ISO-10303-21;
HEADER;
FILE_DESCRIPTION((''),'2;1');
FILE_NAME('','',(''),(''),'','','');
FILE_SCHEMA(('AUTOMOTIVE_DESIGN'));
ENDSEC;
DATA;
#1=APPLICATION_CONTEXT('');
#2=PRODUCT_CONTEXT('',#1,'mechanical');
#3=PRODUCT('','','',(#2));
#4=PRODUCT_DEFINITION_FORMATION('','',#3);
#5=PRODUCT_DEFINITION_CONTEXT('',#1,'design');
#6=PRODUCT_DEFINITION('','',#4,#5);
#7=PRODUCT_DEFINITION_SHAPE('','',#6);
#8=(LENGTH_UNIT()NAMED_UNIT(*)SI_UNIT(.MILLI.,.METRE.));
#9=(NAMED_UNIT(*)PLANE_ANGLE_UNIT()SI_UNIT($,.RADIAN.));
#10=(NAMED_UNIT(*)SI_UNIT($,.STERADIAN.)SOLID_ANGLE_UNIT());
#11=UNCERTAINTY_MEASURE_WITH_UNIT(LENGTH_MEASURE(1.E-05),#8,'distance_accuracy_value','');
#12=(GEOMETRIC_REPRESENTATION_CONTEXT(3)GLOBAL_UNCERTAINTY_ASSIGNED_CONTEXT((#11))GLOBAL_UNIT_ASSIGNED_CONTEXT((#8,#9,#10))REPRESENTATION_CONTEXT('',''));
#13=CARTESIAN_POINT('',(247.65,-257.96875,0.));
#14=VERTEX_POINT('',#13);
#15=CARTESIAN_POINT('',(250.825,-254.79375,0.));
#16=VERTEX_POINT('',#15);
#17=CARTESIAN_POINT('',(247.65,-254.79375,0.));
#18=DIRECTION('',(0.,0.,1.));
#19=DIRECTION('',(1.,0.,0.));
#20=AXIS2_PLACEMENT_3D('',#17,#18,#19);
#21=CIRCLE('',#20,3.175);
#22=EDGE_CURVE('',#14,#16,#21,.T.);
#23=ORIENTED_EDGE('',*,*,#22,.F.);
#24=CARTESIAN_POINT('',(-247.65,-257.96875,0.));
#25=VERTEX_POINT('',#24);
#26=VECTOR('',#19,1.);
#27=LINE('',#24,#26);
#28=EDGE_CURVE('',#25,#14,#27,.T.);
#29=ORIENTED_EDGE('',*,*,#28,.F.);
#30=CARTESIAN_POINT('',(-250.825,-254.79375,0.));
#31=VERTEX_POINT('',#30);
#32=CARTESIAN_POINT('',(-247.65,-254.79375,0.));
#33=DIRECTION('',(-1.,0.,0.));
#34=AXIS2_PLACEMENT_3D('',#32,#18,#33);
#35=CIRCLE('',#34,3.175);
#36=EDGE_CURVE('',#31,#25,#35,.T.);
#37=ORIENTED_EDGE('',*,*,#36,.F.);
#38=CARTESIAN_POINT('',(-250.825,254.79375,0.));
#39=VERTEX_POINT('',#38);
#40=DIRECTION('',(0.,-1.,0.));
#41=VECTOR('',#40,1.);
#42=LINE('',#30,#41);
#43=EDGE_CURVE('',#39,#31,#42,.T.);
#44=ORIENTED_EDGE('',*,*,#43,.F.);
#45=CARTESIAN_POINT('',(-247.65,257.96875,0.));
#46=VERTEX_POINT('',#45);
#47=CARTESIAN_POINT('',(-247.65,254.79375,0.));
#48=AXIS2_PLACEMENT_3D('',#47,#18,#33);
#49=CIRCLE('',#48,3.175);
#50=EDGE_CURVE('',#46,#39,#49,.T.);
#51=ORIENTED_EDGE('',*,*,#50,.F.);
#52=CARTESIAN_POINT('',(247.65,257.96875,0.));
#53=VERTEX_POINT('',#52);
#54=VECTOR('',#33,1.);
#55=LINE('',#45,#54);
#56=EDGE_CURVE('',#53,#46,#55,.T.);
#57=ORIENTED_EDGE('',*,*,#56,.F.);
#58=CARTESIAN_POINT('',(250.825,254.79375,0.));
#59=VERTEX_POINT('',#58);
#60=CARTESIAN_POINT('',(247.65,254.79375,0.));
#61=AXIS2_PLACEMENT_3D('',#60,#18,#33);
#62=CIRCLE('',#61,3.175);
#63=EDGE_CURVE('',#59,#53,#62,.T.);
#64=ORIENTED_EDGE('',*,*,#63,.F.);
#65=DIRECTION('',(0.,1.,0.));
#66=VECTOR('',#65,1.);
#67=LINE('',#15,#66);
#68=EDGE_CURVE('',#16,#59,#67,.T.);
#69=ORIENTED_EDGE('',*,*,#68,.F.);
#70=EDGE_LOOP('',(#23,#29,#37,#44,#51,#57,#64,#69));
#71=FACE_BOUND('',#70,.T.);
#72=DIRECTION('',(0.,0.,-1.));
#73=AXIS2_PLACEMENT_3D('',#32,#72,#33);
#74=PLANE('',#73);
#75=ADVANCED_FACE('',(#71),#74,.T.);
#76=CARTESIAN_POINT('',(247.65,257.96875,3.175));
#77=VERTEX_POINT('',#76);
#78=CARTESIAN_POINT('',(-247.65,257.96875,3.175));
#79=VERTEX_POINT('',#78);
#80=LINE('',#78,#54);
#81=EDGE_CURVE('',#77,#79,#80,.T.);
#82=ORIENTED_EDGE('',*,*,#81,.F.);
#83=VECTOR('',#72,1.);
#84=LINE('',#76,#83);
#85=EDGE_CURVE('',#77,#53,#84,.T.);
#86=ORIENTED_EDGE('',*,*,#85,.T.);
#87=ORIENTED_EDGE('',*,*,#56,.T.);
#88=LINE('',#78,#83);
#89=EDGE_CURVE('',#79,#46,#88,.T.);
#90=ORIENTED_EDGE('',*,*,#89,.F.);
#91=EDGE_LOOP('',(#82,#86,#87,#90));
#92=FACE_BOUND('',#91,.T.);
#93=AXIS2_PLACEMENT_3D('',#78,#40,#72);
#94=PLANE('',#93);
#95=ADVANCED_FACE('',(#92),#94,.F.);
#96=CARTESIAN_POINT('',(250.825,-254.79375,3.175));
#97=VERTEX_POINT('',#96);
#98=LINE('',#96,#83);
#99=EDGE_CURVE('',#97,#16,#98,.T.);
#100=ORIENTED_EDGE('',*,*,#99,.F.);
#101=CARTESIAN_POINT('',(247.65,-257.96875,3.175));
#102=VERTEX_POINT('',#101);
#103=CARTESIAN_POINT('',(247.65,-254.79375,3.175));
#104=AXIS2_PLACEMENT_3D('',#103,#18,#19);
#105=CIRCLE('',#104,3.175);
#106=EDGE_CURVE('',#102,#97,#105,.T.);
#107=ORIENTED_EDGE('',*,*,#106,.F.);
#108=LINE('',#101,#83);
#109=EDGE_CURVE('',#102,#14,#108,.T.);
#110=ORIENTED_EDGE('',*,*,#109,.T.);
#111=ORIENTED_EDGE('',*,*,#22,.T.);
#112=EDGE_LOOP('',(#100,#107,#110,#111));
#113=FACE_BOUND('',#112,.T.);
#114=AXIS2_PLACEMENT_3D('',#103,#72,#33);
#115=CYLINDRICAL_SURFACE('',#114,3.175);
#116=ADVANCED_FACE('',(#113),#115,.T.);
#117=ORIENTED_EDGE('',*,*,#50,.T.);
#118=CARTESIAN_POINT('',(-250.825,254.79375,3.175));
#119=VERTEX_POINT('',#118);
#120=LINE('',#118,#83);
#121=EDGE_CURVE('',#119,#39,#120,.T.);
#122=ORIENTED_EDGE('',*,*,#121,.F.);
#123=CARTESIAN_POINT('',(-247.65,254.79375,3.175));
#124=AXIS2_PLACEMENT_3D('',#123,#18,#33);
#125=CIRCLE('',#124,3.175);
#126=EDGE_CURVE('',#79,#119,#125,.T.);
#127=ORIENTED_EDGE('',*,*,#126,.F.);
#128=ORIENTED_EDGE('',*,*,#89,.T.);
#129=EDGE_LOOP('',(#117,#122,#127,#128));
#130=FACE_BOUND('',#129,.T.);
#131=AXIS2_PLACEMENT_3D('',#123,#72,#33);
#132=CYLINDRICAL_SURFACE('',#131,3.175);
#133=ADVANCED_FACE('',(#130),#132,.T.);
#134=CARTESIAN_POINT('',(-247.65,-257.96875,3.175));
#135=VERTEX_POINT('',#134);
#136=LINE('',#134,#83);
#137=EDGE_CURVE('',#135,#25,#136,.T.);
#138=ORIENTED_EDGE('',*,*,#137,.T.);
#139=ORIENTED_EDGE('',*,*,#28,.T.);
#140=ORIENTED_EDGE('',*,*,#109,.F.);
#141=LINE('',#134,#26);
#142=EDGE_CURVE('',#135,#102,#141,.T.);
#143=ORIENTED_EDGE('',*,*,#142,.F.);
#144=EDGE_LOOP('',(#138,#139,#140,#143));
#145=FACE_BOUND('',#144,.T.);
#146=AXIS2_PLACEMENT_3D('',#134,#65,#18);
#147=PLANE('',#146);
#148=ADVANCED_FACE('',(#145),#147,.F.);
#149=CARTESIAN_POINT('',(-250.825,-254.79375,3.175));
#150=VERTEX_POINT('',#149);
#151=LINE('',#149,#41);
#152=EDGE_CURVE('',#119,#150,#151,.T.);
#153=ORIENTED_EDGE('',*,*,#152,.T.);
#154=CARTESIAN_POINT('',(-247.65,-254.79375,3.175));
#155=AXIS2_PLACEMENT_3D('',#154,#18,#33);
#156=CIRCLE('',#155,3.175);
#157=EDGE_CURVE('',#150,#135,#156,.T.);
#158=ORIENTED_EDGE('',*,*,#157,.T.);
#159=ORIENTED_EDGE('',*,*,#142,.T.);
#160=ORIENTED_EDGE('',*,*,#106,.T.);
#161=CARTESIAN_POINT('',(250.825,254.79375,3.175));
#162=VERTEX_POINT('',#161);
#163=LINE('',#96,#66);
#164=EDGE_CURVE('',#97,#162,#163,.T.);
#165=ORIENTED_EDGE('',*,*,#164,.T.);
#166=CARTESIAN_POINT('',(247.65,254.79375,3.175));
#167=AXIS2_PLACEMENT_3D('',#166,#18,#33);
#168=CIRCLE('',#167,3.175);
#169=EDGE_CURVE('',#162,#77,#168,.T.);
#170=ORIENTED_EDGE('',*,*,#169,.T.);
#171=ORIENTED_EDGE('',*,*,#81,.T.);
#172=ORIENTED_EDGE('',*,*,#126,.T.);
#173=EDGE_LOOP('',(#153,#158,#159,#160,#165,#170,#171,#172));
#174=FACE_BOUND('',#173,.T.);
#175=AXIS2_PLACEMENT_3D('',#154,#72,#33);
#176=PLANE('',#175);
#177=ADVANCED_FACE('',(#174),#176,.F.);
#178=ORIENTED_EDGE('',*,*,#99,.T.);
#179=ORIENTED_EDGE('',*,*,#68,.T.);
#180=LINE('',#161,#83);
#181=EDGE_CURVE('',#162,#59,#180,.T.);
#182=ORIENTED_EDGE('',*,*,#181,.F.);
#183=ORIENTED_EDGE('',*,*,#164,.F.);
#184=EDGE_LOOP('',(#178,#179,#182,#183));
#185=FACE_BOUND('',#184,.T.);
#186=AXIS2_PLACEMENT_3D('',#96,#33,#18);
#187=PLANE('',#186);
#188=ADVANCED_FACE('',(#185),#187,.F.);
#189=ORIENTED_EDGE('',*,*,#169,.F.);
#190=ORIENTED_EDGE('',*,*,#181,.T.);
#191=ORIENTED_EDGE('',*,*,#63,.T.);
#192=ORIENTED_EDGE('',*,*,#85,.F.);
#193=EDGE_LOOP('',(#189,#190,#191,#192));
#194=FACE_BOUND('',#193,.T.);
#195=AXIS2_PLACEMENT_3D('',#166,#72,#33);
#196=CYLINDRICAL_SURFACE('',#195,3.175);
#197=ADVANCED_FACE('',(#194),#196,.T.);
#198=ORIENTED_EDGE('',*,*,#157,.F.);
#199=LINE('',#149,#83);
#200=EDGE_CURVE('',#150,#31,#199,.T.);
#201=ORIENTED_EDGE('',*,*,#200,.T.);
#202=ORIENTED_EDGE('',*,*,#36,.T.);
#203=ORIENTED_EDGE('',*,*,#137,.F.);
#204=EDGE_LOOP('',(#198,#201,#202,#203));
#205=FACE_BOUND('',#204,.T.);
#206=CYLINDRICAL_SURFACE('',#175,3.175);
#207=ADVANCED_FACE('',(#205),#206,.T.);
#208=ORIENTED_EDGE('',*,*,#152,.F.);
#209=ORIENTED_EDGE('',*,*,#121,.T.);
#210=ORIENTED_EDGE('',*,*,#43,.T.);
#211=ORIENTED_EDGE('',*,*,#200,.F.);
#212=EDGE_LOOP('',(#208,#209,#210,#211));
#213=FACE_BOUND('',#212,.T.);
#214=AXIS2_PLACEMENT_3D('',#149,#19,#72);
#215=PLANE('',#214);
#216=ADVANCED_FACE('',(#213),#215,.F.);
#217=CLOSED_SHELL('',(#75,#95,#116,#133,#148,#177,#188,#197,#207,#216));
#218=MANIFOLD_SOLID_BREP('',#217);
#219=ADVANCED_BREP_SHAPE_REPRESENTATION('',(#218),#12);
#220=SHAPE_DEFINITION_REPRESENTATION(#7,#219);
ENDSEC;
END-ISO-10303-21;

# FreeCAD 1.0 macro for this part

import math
import FreeCAD as App
import Part
import Sketcher
Q = App.Units.Quantity

doc = App.newDocument("Part")
body = doc.addObject("PartDesign::Body", "Body")

# Sketch on XY plane
sketch1 = body.newObject("Sketcher::SketchObject", "Sketch")
sketch1.AttachmentSupport = (doc.getObject("XY_Plane"), [""])
sketch1.MapMode = "FlatFace"
sketch1.addGeometry(Part.LineSegment(App.Vector(-247.7, -258, 0), App.Vector(247.7, -258, 0)), False)
sketch1.addGeometry(Part.ArcOfCircle(Part.Circle(App.Vector(247.6, -254.8, 0), App.Vector(0, 0, 1), 3.2), math.radians(-90), math.radians(0)), False)
sketch1.addGeometry(Part.LineSegment(App.Vector(250.8, -254.8, 0), App.Vector(250.8, 254.8, 0)), False)
sketch1.addGeometry(Part.ArcOfCircle(Part.Circle(App.Vector(247.6, 254.8, 0), App.Vector(0, 0, 1), 3.2), math.radians(0), math.radians(90)), False)
sketch1.addGeometry(Part.LineSegment(App.Vector(247.7, 258, 0), App.Vector(-247.7, 258, 0)), False)
sketch1.addGeometry(Part.ArcOfCircle(Part.Circle(App.Vector(-247.6, 254.8, 0), App.Vector(0, 0, 1), 3.2), math.radians(90), math.radians(180)), False)
sketch1.addGeometry(Part.LineSegment(App.Vector(-250.8, 254.8, 0), App.Vector(-250.8, -254.8, 0)), False)
sketch1.addGeometry(Part.ArcOfCircle(Part.Circle(App.Vector(-247.6, -254.8, 0), App.Vector(0, 0, 1), 3.2), math.radians(-180), math.radians(-90)), False)
sketch1.addConstraint(Sketcher.Constraint("Tangent", 0, 2, 1, 1))
sketch1.addConstraint(Sketcher.Constraint("Tangent", 1, 2, 2, 1))
sketch1.addConstraint(Sketcher.Constraint("Tangent", 2, 2, 3, 1))
sketch1.addConstraint(Sketcher.Constraint("Tangent", 3, 2, 4, 1))
sketch1.addConstraint(Sketcher.Constraint("Tangent", 4, 2, 5, 1))
sketch1.addConstraint(Sketcher.Constraint("Tangent", 5, 2, 6, 1))
sketch1.addConstraint(Sketcher.Constraint("Tangent", 6, 2, 7, 1))
sketch1.addConstraint(Sketcher.Constraint("Tangent", 7, 2, 0, 1))
sketch1.addConstraint(Sketcher.Constraint("Horizontal", 0))
sketch1.addConstraint(Sketcher.Constraint("Vertical", 2))
sketch1.addConstraint(Sketcher.Constraint("Horizontal", 4))
sketch1.addConstraint(Sketcher.Constraint("Vertical", 6))
sketch1.addConstraint(Sketcher.Constraint("Equal", 1, 3))
sketch1.addConstraint(Sketcher.Constraint("Equal", 3, 5))
sketch1.addConstraint(Sketcher.Constraint("Equal", 5, 7))
sketch1.addConstraint(Sketcher.Constraint("Symmetric", 1, 3, 5, 3, -1, 1))
sketch1.addConstraint(Sketcher.Constraint("DistanceX", 0, 1, 0, 2, Q("19.5 in")))
sketch1.addConstraint(Sketcher.Constraint("Radius", 1, Q("0.125 in")))
sketch1.addConstraint(Sketcher.Constraint("DistanceY", 2, 1, 2, 2, Q("20.0625 in")))
pad1 = body.newObject("PartDesign::Pad", "Pad")
pad1.Profile = sketch1
pad1.Length = Q("0.125 in")

doc.recompute()
